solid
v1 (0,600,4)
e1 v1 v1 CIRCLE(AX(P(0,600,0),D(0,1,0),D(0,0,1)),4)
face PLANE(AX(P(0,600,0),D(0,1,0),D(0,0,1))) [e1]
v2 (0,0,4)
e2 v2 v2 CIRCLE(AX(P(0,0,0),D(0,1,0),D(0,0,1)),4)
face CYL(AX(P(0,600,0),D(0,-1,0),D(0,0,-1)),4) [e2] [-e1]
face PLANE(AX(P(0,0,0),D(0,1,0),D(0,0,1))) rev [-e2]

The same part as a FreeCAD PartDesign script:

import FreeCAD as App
import Part
import Sketcher
Q = App.Units.Quantity

doc = App.newDocument("Part")
body = doc.addObject("PartDesign::Body", "Body")

sketch1 = doc.addObject("Sketcher::SketchObject", "Sketch")
body.addObject(sketch1)
sketch1.AttachmentSupport = (doc.XZ_Plane, [""])
sketch1.MapMode = "FlatFace"
sketch1.addGeometry(Part.Circle(App.Vector(0, 0, 0), App.Vector(0, 0, 1), 4), False)
sketch1.addConstraint([
    Sketcher.Constraint("Coincident", 0, 3, -1, 1),
    Sketcher.Constraint("Diameter", 0, Q("8 mm")),
])
pad1 = doc.addObject("PartDesign::Pad", "Pad")
body.addObject(pad1)
pad1.Profile = sketch1
pad1.Length = 600
pad1.Reversed = True

doc.recompute()
